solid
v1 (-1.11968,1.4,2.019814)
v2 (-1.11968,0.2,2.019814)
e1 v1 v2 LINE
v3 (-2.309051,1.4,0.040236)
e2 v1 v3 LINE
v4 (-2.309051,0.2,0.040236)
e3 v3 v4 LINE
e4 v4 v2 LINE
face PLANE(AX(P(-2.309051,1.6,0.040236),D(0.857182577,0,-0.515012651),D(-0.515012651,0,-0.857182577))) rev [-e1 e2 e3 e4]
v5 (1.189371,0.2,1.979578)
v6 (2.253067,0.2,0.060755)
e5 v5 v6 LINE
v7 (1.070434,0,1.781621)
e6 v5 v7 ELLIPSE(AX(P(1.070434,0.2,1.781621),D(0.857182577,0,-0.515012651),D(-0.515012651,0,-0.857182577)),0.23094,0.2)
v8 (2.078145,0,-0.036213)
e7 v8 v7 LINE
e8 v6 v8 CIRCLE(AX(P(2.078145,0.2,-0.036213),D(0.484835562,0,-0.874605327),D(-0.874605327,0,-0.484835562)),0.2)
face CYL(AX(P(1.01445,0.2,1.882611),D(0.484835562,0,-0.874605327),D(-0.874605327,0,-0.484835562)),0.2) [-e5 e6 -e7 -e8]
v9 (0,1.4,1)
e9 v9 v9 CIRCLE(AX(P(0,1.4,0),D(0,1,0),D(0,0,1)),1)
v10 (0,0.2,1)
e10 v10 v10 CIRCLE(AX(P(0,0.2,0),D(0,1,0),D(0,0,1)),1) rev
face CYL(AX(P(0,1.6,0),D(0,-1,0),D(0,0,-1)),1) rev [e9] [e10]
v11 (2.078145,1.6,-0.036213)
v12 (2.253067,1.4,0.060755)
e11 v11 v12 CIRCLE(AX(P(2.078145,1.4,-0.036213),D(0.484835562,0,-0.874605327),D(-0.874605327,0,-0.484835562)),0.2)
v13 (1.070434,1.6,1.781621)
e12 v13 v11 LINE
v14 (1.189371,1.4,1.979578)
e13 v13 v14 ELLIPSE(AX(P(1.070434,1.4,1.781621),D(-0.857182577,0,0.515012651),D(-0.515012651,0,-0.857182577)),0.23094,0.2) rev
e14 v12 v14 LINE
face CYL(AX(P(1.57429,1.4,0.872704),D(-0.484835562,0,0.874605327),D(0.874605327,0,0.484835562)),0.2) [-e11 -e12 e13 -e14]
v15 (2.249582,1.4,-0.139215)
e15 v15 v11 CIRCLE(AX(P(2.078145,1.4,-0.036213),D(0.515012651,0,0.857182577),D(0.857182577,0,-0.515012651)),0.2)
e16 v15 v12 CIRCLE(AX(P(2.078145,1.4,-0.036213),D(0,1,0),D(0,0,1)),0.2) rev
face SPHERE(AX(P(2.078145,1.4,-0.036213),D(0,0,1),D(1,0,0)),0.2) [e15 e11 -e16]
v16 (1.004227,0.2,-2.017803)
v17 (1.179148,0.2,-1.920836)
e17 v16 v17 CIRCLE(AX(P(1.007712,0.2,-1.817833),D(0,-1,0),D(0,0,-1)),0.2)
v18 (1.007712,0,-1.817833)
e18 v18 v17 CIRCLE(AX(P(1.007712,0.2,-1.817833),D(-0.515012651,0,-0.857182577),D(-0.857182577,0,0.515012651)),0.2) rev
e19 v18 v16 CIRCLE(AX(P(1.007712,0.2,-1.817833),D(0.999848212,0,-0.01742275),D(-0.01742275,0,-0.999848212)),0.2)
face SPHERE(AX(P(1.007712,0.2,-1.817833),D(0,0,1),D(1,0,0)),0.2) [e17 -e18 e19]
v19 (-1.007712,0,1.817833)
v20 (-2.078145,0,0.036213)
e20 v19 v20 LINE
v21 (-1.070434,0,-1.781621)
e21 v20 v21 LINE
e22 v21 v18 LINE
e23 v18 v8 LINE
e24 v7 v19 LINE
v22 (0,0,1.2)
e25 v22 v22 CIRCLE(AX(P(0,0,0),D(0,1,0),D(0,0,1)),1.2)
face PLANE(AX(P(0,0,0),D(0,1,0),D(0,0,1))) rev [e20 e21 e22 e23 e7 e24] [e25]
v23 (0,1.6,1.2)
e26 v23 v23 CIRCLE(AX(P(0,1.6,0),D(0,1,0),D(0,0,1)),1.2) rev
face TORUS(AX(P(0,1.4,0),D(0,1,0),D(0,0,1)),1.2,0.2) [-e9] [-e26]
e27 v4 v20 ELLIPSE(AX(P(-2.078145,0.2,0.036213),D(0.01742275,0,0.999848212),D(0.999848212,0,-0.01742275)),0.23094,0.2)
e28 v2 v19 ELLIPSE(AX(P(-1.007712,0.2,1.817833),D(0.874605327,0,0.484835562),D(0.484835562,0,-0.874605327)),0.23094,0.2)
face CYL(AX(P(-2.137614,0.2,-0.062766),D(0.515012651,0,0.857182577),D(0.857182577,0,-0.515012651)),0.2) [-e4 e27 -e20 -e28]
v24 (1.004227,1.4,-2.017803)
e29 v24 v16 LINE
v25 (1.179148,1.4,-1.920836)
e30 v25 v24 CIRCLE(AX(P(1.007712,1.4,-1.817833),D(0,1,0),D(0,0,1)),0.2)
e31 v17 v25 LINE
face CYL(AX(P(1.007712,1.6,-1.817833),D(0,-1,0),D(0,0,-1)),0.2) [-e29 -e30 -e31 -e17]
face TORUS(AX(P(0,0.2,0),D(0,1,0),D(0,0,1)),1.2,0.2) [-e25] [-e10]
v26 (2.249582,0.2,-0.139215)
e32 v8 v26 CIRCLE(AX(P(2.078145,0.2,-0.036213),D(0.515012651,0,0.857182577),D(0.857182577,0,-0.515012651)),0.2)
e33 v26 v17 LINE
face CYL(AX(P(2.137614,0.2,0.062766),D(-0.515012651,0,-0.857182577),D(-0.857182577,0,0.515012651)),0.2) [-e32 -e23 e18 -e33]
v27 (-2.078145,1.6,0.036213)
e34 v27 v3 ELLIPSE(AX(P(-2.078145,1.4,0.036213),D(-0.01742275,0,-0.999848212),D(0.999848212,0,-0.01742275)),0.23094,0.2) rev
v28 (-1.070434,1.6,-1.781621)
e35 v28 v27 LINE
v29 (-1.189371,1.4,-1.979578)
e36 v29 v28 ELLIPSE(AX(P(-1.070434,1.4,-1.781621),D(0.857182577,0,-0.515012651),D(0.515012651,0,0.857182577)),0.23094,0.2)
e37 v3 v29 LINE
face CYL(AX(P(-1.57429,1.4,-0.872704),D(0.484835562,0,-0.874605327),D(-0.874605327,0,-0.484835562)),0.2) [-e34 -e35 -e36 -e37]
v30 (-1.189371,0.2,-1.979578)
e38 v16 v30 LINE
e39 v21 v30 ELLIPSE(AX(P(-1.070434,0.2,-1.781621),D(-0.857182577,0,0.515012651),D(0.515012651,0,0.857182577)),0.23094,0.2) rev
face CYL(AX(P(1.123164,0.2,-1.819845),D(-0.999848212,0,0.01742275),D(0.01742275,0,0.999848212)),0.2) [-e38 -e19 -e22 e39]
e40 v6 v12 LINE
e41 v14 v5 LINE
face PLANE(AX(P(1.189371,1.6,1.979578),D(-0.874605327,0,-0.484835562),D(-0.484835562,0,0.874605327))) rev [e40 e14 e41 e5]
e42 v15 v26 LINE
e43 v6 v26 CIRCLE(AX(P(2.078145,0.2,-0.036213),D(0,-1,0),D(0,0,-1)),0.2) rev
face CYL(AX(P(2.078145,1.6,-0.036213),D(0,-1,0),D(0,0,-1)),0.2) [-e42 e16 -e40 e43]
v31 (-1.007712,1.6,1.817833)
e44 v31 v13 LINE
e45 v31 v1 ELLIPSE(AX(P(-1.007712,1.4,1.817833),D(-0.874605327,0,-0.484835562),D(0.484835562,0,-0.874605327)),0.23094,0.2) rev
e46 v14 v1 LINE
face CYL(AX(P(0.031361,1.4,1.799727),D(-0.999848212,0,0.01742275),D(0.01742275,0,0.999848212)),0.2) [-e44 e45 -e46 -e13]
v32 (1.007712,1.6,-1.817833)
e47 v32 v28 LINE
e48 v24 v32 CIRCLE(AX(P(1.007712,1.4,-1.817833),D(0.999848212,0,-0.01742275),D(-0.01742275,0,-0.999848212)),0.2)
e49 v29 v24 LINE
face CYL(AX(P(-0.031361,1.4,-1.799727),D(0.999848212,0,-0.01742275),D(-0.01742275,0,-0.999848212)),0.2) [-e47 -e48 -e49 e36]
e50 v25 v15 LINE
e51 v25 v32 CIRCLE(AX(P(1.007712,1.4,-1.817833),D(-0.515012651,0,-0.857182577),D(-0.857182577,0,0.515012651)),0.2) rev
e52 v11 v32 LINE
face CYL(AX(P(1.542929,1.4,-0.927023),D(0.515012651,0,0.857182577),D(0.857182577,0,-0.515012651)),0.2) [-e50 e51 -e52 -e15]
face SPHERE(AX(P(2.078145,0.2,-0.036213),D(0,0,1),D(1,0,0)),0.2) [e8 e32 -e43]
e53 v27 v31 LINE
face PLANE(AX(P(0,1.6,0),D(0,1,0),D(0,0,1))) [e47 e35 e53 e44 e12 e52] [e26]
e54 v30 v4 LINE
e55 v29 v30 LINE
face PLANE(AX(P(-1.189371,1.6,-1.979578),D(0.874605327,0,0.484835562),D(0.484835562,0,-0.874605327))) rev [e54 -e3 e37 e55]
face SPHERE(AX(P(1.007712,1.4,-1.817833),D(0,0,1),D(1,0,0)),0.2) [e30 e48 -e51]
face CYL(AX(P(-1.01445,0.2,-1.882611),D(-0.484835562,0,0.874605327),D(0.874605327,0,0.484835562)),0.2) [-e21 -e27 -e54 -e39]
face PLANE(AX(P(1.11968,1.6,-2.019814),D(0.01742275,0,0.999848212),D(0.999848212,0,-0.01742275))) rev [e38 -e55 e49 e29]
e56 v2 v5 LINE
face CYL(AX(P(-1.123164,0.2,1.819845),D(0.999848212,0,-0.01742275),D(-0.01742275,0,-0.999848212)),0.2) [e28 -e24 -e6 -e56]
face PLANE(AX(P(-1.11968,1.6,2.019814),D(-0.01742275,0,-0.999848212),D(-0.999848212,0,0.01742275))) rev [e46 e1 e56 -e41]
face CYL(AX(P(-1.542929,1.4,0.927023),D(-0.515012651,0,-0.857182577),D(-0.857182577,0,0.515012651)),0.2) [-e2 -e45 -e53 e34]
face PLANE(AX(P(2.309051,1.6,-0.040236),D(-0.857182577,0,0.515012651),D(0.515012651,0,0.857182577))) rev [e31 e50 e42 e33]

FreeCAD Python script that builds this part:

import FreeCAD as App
import Part
import Sketcher
Q = App.Units.Quantity


def edges_at(feature, points):
    """Names of the edges that pass closest to the given points."""
    edges = feature.Shape.Edges
    near = lambda p: min(range(len(edges)), key=lambda i: edges[i].distToShape(Part.Vertex(*p))[0])
    return sorted({f"Edge{near(p) + 1}" for p in points})


def add_polygon(sketch, points):
    """Adds a closed chain of lines whose ends are joined by coincident constraints."""
    first, n = sketch.GeometryCount, len(points)
    for a, b in zip(points, points[1:] + points[:1]):
        sketch.addGeometry(Part.LineSegment(App.Vector(*a, 0), App.Vector(*b, 0)), False)
    for i in range(n):
        sketch.addConstraint(Sketcher.Constraint("Coincident", first + i, 2, first + (i + 1) % n, 1))

doc = App.newDocument("Part")
body = doc.addObject("PartDesign::Body", "Body")

sketch1 = body.newObject("Sketcher::SketchObject", "Sketch")
sketch1.AttachmentSupport = (doc.getObject("XZ_Plane"), [""])
sketch1.MapMode = "FlatFace"
add_polygon(sketch1, [(1.1, -2), (-1.2, -2), (-2.3, 0), (-1.1, 2), (1.2, 2), (2.3, 0)])
sketch1.addGeometry(Part.Circle(App.Vector(0, 0, 0), App.Vector(0, 0, 1), 1), False)
sketch1.addConstraint([
    Sketcher.Constraint("Coincident", 6, 3, -1, 1),
    Sketcher.Constraint("Symmetric", 0, 2, 3, 2, -1, 1),
    Sketcher.Constraint("Symmetric", 1, 2, 4, 2, -1, 1),
    Sketcher.Constraint("Symmetric", 2, 2, 5, 2, -1, 1),
    Sketcher.Constraint("Equal", 0, 1),
    Sketcher.Constraint("Equal", 1, 2),
    Sketcher.Constraint("Diameter", 6, Q("2 mm")),
    Sketcher.Constraint("Distance", 0, Q("2.309401 mm")),
    Sketcher.Constraint("DistanceX", 1, 2, 4, 2, Q("4.618101 mm")),
    Sketcher.Constraint("DistanceX", 0, 2, -1, 1, Q("1.189371 mm")),
    Sketcher.Constraint("DistanceY", 0, 2, -1, 1, Q("1.979578 mm")),
])
pad1 = body.newObject("PartDesign::Pad", "Pad")
pad1.Profile = sketch1
pad1.Length = 1.6
pad1.Reversed = True
doc.recompute()

fillet = body.newObject("PartDesign::Fillet", "Fillet")
fillet.Base = (pad1, edges_at(pad1, [
    (2.309, 0.8, -0.04),
    (1.12, 0.8, -2.02),
    (-1.749, 1.6, -0.97),
    (-1.714, 1.6, 1.03),
    (0, 0, -1),
    (0, 1.6, -1),
    (0.035, 1.6, 2),
    (1.749, 1.6, 0.97),
    (1.714, 1.6, -1.03),
    (1.749, 0, 0.97),
    (0.035, 0, 2),
    (-1.714, 0, 1.03),
    (-1.749, 0, -0.97),
    (-0.035, 0, -2),
    (1.714, 0, -1.03),
    (-0.035, 1.6, -2),
]))
fillet.Radius = 0.2

doc.recompute()
